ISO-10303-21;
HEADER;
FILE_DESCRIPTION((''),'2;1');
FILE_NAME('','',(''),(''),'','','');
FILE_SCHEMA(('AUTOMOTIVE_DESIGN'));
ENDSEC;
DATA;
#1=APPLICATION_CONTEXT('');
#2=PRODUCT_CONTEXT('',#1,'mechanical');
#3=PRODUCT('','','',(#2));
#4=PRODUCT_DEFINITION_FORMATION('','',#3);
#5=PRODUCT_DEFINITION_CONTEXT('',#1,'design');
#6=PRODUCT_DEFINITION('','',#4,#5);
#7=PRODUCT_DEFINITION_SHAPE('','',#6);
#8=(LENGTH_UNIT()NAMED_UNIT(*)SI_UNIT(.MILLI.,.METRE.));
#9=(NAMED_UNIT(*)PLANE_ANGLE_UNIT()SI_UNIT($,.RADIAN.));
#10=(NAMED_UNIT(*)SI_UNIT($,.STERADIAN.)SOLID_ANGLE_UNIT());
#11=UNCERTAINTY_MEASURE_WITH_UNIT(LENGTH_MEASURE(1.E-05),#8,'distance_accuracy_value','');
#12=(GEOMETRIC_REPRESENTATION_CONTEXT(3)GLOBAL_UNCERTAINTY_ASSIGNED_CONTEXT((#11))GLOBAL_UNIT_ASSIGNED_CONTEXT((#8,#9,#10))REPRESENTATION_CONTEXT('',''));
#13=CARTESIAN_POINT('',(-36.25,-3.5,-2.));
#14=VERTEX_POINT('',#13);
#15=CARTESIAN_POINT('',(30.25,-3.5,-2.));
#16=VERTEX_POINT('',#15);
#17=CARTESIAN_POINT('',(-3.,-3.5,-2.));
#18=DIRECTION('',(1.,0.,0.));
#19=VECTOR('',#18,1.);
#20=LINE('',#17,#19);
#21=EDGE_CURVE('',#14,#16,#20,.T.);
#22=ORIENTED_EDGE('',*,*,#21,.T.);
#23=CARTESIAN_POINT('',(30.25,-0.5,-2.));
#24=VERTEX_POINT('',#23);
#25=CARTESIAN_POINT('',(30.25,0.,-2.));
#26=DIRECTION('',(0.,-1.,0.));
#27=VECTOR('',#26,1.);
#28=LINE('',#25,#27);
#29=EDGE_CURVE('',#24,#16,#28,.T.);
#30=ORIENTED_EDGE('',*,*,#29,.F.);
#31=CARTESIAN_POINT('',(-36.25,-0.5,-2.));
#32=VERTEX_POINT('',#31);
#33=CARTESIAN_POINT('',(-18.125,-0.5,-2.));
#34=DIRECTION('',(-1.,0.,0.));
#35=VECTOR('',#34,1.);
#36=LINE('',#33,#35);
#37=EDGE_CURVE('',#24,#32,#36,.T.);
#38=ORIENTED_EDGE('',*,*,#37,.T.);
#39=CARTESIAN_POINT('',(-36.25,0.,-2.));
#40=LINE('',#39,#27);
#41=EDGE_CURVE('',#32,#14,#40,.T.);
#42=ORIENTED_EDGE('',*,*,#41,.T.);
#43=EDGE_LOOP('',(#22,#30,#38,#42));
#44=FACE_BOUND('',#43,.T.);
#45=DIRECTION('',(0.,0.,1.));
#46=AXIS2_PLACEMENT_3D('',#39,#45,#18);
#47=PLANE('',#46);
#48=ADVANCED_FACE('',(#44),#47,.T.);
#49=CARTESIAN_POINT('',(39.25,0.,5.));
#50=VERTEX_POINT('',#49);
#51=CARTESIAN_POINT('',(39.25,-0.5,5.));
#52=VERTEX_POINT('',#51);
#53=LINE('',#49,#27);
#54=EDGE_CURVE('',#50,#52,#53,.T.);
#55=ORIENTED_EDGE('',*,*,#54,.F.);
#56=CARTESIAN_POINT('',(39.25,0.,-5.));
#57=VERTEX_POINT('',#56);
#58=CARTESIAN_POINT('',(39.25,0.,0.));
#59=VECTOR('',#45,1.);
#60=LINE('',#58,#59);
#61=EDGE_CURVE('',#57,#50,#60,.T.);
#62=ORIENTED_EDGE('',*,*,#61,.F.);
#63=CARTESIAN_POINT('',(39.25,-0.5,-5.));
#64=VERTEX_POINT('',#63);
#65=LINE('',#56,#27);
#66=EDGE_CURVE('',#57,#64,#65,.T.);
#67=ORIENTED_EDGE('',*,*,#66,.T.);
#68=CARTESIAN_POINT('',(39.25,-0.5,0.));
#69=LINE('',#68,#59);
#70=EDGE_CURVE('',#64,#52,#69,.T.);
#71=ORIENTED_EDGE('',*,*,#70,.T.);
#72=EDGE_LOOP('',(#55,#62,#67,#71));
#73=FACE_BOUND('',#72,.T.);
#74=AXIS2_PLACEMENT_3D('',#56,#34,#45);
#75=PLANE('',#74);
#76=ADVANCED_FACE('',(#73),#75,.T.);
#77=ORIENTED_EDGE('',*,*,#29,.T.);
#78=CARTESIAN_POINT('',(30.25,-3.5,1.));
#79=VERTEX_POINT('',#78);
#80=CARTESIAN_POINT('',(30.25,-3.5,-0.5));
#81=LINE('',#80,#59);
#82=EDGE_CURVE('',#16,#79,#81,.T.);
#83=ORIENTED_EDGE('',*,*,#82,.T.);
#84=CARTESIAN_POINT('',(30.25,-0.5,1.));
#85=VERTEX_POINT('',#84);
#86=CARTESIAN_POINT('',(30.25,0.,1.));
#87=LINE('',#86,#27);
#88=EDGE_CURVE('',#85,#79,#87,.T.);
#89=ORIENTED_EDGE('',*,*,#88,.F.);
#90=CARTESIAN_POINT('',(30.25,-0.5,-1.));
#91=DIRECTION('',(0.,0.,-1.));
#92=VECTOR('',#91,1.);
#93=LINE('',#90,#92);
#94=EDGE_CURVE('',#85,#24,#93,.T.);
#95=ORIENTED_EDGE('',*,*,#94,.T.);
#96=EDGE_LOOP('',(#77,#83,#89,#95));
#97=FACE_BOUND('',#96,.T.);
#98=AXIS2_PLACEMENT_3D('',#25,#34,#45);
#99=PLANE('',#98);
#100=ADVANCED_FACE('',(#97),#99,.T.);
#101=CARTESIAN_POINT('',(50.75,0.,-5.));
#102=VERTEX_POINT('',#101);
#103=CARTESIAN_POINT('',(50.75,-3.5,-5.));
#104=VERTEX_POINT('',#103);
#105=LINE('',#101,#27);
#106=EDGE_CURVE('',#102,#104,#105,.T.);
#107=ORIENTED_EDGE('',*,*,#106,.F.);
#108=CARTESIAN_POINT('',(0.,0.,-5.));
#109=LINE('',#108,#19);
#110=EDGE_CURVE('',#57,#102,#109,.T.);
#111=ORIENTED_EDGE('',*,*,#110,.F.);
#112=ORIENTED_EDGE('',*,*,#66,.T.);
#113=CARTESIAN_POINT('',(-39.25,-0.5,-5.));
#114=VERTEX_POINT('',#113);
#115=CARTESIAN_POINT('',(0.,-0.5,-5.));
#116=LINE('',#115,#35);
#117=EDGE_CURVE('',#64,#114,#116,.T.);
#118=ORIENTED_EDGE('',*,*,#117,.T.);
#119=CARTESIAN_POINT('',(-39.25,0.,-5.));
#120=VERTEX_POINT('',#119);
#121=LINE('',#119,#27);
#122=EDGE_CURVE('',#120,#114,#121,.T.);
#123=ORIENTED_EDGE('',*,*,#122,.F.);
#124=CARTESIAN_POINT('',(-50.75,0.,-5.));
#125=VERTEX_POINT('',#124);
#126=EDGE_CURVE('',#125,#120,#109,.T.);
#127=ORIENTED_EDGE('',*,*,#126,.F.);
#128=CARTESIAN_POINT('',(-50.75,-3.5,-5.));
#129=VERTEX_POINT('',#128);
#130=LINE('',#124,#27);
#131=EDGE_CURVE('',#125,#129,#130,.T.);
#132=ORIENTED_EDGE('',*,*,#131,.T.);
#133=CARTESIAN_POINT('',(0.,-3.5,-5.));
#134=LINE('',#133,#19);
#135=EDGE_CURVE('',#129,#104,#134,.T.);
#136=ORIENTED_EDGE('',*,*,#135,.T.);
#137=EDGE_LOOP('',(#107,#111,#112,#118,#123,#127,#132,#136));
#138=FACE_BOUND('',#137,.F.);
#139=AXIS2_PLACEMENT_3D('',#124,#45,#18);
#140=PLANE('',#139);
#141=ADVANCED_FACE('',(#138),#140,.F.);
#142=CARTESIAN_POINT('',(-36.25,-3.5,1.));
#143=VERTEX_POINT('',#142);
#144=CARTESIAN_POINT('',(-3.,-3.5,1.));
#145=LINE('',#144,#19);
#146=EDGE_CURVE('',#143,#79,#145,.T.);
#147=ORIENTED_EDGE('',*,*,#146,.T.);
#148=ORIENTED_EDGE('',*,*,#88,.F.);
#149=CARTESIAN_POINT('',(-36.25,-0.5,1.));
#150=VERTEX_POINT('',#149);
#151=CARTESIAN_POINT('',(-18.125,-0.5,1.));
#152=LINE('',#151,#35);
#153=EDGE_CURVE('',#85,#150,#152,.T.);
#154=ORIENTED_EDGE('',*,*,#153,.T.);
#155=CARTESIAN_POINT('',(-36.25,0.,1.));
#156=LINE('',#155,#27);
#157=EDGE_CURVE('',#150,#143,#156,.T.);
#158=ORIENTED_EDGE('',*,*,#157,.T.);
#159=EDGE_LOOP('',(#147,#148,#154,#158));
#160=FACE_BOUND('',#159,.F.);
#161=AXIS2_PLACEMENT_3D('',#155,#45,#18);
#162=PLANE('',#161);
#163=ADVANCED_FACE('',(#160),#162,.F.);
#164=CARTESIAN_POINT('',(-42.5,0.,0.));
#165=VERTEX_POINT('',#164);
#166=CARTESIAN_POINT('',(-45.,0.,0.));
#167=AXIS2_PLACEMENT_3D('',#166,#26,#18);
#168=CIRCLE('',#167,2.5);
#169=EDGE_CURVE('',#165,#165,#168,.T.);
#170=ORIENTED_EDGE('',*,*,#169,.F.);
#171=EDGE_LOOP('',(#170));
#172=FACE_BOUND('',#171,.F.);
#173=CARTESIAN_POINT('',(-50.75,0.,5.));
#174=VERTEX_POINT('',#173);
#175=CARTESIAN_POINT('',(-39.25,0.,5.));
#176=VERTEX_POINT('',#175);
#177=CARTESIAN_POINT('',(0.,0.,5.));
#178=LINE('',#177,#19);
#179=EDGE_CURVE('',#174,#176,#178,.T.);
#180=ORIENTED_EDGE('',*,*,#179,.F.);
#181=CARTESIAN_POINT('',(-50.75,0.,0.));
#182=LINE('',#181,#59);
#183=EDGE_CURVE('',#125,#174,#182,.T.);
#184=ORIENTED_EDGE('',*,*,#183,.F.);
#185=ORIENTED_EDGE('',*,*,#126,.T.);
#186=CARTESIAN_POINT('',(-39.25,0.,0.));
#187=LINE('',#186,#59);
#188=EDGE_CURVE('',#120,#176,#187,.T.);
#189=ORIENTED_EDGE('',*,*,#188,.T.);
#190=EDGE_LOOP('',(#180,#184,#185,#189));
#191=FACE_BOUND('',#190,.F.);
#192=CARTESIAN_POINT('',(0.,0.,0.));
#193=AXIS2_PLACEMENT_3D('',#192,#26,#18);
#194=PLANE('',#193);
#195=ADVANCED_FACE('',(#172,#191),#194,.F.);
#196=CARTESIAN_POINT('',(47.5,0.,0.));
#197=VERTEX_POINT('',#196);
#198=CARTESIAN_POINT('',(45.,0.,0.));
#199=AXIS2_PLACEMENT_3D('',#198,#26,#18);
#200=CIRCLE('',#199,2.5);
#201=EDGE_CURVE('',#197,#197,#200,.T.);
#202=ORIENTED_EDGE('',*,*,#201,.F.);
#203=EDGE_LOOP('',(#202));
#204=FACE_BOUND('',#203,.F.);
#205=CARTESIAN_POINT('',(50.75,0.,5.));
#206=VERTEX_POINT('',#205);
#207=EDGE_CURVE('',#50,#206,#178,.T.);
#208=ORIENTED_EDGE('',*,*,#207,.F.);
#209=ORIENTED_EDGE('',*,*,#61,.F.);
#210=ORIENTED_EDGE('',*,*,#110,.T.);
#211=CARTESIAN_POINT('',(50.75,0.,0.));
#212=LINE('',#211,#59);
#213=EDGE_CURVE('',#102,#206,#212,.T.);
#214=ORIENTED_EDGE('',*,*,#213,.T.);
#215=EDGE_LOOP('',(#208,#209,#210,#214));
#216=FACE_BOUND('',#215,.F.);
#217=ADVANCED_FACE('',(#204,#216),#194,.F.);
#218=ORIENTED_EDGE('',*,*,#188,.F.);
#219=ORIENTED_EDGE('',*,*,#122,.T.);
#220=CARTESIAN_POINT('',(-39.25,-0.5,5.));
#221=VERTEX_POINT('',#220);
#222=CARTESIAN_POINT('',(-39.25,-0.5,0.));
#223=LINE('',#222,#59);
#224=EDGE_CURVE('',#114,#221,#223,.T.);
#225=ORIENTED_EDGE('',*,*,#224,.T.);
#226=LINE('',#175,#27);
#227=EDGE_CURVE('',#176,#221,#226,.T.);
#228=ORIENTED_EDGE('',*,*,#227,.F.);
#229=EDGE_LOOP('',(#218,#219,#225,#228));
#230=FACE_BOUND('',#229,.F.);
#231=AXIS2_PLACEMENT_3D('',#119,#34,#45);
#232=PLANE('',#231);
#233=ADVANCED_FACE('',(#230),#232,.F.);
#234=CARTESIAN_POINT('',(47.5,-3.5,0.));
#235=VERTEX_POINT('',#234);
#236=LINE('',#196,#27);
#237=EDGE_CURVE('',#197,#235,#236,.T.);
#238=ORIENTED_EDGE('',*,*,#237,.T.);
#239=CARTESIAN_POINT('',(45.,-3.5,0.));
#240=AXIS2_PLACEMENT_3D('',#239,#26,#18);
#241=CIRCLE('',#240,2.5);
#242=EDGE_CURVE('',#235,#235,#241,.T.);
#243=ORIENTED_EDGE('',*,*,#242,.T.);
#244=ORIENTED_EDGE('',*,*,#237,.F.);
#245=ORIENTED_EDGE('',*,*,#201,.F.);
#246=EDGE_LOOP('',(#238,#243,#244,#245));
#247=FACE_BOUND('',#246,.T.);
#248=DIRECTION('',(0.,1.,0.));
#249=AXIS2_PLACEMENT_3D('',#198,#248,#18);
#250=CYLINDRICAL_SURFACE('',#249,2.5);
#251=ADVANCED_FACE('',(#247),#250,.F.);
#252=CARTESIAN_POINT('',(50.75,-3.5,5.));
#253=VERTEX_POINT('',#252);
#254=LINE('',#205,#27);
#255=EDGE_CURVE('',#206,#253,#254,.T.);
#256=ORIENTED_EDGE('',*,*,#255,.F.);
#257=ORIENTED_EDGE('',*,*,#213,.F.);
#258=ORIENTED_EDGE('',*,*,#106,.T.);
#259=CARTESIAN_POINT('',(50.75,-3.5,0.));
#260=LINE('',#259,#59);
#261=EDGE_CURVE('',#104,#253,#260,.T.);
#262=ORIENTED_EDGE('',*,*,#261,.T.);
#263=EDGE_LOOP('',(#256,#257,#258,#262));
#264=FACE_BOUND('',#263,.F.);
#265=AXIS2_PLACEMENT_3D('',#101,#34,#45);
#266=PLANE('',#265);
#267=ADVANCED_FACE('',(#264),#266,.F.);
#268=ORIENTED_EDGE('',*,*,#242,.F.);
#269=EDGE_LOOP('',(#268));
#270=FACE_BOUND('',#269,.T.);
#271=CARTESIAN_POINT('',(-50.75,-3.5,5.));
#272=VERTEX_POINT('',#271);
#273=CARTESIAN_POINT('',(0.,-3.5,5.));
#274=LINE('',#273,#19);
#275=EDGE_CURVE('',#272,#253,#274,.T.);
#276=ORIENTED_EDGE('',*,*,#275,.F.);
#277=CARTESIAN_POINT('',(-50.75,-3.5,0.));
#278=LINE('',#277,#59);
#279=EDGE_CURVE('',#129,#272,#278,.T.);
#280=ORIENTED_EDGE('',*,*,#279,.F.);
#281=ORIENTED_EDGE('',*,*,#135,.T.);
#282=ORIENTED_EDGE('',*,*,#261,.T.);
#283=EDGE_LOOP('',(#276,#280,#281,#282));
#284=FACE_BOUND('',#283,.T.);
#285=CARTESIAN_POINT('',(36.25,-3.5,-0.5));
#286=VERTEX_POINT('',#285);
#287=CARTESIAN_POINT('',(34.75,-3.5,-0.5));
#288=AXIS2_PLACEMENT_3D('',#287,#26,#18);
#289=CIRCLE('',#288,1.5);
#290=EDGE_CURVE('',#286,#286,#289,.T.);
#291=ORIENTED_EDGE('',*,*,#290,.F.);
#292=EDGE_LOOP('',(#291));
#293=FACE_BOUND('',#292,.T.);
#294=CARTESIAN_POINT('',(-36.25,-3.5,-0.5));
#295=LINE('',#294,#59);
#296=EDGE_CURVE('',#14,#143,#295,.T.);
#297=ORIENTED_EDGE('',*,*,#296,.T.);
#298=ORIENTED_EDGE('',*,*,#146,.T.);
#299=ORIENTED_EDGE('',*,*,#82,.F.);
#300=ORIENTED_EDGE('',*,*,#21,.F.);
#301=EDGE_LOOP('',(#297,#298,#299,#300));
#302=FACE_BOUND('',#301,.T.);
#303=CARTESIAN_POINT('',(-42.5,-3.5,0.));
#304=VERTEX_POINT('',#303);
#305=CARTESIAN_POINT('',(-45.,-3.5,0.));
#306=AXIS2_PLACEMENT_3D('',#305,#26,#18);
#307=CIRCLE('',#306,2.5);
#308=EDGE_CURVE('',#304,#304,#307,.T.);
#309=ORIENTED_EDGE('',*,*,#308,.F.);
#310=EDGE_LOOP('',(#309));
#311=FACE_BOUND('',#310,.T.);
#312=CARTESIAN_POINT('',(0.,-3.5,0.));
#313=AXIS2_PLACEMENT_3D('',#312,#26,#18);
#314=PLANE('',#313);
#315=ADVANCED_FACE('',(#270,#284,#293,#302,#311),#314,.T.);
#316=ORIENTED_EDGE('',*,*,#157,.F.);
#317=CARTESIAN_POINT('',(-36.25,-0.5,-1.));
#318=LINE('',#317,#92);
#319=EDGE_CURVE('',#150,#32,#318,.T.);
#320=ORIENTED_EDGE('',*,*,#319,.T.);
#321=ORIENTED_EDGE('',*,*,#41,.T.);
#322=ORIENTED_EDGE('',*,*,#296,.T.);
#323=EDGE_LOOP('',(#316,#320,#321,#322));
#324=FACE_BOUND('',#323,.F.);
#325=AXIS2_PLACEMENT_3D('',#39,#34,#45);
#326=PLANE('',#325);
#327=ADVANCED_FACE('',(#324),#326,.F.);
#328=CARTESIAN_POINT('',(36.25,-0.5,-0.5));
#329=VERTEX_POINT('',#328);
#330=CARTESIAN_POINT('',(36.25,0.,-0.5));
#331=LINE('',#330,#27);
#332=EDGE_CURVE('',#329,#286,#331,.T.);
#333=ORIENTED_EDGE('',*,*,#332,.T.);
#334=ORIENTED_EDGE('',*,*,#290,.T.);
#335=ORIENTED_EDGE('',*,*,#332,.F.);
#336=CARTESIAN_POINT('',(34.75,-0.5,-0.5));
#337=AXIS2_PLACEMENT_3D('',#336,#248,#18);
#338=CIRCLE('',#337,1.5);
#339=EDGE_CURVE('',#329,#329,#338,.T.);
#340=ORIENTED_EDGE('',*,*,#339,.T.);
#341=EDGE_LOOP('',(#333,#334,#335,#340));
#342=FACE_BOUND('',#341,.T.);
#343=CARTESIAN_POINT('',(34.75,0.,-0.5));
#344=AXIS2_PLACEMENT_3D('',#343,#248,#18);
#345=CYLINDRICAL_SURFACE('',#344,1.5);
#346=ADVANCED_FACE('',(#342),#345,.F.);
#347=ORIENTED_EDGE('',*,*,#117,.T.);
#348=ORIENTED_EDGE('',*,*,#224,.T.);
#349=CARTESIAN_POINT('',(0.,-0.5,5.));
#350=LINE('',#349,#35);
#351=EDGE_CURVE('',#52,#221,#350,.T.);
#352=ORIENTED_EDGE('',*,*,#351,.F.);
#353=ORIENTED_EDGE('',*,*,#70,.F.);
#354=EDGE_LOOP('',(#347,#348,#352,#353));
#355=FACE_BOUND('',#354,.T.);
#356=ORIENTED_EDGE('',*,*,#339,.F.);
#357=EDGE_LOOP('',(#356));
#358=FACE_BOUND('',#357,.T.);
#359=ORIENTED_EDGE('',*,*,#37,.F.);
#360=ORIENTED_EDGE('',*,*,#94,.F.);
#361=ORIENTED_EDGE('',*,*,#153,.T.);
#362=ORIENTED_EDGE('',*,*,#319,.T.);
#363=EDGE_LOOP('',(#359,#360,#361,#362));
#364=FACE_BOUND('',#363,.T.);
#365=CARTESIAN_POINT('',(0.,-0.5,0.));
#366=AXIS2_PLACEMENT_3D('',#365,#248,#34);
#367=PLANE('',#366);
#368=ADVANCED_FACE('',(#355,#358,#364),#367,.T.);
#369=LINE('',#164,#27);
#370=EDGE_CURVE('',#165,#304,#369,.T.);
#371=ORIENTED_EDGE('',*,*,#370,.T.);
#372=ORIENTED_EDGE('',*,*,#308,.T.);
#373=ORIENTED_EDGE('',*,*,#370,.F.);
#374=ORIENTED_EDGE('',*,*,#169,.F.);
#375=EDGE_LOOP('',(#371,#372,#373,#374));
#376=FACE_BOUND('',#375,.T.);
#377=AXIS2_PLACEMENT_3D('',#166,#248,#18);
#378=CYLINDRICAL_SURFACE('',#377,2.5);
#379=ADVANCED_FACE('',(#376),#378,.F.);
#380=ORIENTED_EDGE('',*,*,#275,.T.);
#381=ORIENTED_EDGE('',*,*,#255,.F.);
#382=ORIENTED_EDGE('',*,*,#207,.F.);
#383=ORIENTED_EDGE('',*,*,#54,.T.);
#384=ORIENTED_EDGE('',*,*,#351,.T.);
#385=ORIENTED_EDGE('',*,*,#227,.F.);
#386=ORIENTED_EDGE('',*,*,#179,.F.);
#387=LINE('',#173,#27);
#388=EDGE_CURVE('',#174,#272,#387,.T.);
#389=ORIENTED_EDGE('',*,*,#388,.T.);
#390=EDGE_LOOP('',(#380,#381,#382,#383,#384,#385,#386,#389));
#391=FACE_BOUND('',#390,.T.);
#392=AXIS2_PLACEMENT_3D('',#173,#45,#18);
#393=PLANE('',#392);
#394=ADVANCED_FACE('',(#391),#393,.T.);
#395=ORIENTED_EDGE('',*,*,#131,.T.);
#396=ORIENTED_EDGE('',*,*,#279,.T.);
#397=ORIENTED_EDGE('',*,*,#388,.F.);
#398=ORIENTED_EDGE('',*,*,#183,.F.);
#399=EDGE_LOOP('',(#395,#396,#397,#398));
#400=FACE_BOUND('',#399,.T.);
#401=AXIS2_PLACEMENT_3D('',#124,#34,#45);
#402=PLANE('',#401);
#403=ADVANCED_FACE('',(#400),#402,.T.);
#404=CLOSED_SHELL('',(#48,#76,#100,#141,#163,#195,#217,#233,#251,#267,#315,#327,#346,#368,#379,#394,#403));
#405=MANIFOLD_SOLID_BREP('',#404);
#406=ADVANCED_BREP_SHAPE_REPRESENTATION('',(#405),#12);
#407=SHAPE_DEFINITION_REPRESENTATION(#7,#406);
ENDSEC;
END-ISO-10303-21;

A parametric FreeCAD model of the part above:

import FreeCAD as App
import Part
import Sketcher
from FreeCAD import Vector

doc = App.newDocument("Part")
body = doc.addObject("PartDesign::Body", "Body")

# Sketch on XZ plane
sketch1 = doc.addObject("Sketcher::SketchObject", "Sketch")
body.addObject(sketch1)
sketch1.AttachmentSupport = (doc.XZ_Plane, [""])
sketch1.MapMode = "FlatFace"
sketch1.addGeometry(Part.LineSegment(Vector(-50.8, 5, 0), Vector(-50.8, -5, 0)), False)
sketch1.addGeometry(Part.LineSegment(Vector(-50.8, -5, 0), Vector(50.8, -5, 0)), False)
sketch1.addGeometry(Part.LineSegment(Vector(50.8, -5, 0), Vector(50.8, 5, 0)), False)
sketch1.addGeometry(Part.LineSegment(Vector(50.8, 5, 0), Vector(-50.8, 5, 0)), False)
sketch1.addGeometry(Part.LineSegment(Vector(30.2, -2, 0), Vector(-36.2, -2, 0)), False)
sketch1.addGeometry(Part.LineSegment(Vector(-36.2, -2, 0), Vector(-36.2, 1, 0)), False)
sketch1.addGeometry(Part.LineSegment(Vector(-36.2, 1, 0), Vector(30.2, 1, 0)), False)
sketch1.addGeometry(Part.LineSegment(Vector(30.2, 1, 0), Vector(30.2, -2, 0)), False)
sketch1.addGeometry(Part.Circle(Vector(34.8, -0.5, 0), Vector(0, 0, 1), 1.5), False)
sketch1.addGeometry(Part.Circle(Vector(-45, 0, 0), Vector(0, 0, 1), 2.5), False)
sketch1.addGeometry(Part.Circle(Vector(45, 0, 0), Vector(0, 0, 1), 2.5), False)
sketch1.addConstraint(Sketcher.Constraint("Coincident", 0, 2, 1, 1))
sketch1.addConstraint(Sketcher.Constraint("Coincident", 1, 2, 2, 1))
sketch1.addConstraint(Sketcher.Constraint("Coincident", 2, 2, 3, 1))
sketch1.addConstraint(Sketcher.Constraint("Coincident", 3, 2, 0, 1))
sketch1.addConstraint(Sketcher.Constraint("Coincident", 4, 2, 5, 1))
sketch1.addConstraint(Sketcher.Constraint("Coincident", 5, 2, 6, 1))
sketch1.addConstraint(Sketcher.Constraint("Coincident", 6, 2, 7, 1))
sketch1.addConstraint(Sketcher.Constraint("Coincident", 7, 2, 4, 1))
sketch1.addConstraint(Sketcher.Constraint("Vertical", 0))
sketch1.addConstraint(Sketcher.Constraint("Horizontal", 1))
sketch1.addConstraint(Sketcher.Constraint("Vertical", 2))
sketch1.addConstraint(Sketcher.Constraint("Horizontal", 3))
sketch1.addConstraint(Sketcher.Constraint("Horizontal", 4))
sketch1.addConstraint(Sketcher.Constraint("Vertical", 5))
sketch1.addConstraint(Sketcher.Constraint("Horizontal", 6))
sketch1.addConstraint(Sketcher.Constraint("Vertical", 7))
sketch1.addConstraint(Sketcher.Constraint("Equal", 9, 10))
sketch1.addConstraint(Sketcher.Constraint("Symmetric", 9, 3, 10, 3, -1, 1))
sketch1.addConstraint(Sketcher.Constraint("Symmetric", 0, 2, 2, 2, -1, 1))
sketch1.addConstraint(Sketcher.Constraint("PointOnObject", 9, 3, -1))
sketch1.addConstraint(Sketcher.Constraint("Diameter", 8, 3.0))
sketch1.addConstraint(Sketcher.Constraint("Diameter", 9, 5.0))
sketch1.addConstraint(Sketcher.Constraint("DistanceY", 0, 2, 0, 1, 10.0))
sketch1.addConstraint(Sketcher.Constraint("DistanceY", 5, 1, 5, 2, 3.0))
sketch1.addConstraint(Sketcher.Constraint("DistanceX", 1, 1, 1, 2, 101.5))
sketch1.addConstraint(Sketcher.Constraint("DistanceX", 4, 2, 4, 1, 66.5))
sketch1.addConstraint(Sketcher.Constraint("DistanceX", 9, 3, -1, 1, 45.0))
sketch1.addConstraint(Sketcher.Constraint("DistanceY", 4, 2, -1, 1, 2.0))
sketch1.addConstraint(Sketcher.Constraint("DistanceX", 8, 3, 1, 2, 16.0))
sketch1.addConstraint(Sketcher.Constraint("DistanceX", 4, 2, 8, 3, 71.0))
sketch1.addConstraint(Sketcher.Constraint("DistanceY", 8, 3, -1, 1, 0.5))
pad1 = doc.addObject("PartDesign::Pad", "Pad")
body.addObject(pad1)
pad1.Profile = sketch1
pad1.Length = 3.5

# Sketch on XZ plane
sketch2 = doc.addObject("Sketcher::SketchObject", "Sketch001")
body.addObject(sketch2)
sketch2.AttachmentSupport = (doc.XZ_Plane, [""])
sketch2.MapMode = "FlatFace"
sketch2.addGeometry(Part.LineSegment(Vector(39, 5, 0), Vector(39, -5, 0)), False)
sketch2.addGeometry(Part.LineSegment(Vector(39, -5, 0), Vector(-39, -5, 0)), False)
sketch2.addGeometry(Part.LineSegment(Vector(-39, -5, 0), Vector(-39, 5, 0)), False)
sketch2.addGeometry(Part.LineSegment(Vector(-39, 5, 0), Vector(39, 5, 0)), False)
sketch2.addConstraint(Sketcher.Constraint("Coincident", 0, 2, 1, 1))
sketch2.addConstraint(Sketcher.Constraint("Coincident", 1, 2, 2, 1))
sketch2.addConstraint(Sketcher.Constraint("Coincident", 2, 2, 3, 1))
sketch2.addConstraint(Sketcher.Constraint("Coincident", 3, 2, 0, 1))
sketch2.addConstraint(Sketcher.Constraint("Vertical", 0))
sketch2.addConstraint(Sketcher.Constraint("Horizontal", 1))
sketch2.addConstraint(Sketcher.Constraint("Vertical", 2))
sketch2.addConstraint(Sketcher.Constraint("Horizontal", 3))
sketch2.addConstraint(Sketcher.Constraint("Symmetric", 0, 2, 2, 2, -1, 1))
sketch2.addConstraint(Sketcher.Constraint("DistanceY", 0, 2, 0, 1, 10.0))
sketch2.addConstraint(Sketcher.Constraint("DistanceX", 1, 2, 1, 1, 78.5))
pocket1 = doc.addObject("PartDesign::Pocket", "Pocket")
body.addObject(pocket1)
pocket1.Profile = sketch2
pocket1.Length = 0.5
pocket1.Reversed = True

doc.recompute()
